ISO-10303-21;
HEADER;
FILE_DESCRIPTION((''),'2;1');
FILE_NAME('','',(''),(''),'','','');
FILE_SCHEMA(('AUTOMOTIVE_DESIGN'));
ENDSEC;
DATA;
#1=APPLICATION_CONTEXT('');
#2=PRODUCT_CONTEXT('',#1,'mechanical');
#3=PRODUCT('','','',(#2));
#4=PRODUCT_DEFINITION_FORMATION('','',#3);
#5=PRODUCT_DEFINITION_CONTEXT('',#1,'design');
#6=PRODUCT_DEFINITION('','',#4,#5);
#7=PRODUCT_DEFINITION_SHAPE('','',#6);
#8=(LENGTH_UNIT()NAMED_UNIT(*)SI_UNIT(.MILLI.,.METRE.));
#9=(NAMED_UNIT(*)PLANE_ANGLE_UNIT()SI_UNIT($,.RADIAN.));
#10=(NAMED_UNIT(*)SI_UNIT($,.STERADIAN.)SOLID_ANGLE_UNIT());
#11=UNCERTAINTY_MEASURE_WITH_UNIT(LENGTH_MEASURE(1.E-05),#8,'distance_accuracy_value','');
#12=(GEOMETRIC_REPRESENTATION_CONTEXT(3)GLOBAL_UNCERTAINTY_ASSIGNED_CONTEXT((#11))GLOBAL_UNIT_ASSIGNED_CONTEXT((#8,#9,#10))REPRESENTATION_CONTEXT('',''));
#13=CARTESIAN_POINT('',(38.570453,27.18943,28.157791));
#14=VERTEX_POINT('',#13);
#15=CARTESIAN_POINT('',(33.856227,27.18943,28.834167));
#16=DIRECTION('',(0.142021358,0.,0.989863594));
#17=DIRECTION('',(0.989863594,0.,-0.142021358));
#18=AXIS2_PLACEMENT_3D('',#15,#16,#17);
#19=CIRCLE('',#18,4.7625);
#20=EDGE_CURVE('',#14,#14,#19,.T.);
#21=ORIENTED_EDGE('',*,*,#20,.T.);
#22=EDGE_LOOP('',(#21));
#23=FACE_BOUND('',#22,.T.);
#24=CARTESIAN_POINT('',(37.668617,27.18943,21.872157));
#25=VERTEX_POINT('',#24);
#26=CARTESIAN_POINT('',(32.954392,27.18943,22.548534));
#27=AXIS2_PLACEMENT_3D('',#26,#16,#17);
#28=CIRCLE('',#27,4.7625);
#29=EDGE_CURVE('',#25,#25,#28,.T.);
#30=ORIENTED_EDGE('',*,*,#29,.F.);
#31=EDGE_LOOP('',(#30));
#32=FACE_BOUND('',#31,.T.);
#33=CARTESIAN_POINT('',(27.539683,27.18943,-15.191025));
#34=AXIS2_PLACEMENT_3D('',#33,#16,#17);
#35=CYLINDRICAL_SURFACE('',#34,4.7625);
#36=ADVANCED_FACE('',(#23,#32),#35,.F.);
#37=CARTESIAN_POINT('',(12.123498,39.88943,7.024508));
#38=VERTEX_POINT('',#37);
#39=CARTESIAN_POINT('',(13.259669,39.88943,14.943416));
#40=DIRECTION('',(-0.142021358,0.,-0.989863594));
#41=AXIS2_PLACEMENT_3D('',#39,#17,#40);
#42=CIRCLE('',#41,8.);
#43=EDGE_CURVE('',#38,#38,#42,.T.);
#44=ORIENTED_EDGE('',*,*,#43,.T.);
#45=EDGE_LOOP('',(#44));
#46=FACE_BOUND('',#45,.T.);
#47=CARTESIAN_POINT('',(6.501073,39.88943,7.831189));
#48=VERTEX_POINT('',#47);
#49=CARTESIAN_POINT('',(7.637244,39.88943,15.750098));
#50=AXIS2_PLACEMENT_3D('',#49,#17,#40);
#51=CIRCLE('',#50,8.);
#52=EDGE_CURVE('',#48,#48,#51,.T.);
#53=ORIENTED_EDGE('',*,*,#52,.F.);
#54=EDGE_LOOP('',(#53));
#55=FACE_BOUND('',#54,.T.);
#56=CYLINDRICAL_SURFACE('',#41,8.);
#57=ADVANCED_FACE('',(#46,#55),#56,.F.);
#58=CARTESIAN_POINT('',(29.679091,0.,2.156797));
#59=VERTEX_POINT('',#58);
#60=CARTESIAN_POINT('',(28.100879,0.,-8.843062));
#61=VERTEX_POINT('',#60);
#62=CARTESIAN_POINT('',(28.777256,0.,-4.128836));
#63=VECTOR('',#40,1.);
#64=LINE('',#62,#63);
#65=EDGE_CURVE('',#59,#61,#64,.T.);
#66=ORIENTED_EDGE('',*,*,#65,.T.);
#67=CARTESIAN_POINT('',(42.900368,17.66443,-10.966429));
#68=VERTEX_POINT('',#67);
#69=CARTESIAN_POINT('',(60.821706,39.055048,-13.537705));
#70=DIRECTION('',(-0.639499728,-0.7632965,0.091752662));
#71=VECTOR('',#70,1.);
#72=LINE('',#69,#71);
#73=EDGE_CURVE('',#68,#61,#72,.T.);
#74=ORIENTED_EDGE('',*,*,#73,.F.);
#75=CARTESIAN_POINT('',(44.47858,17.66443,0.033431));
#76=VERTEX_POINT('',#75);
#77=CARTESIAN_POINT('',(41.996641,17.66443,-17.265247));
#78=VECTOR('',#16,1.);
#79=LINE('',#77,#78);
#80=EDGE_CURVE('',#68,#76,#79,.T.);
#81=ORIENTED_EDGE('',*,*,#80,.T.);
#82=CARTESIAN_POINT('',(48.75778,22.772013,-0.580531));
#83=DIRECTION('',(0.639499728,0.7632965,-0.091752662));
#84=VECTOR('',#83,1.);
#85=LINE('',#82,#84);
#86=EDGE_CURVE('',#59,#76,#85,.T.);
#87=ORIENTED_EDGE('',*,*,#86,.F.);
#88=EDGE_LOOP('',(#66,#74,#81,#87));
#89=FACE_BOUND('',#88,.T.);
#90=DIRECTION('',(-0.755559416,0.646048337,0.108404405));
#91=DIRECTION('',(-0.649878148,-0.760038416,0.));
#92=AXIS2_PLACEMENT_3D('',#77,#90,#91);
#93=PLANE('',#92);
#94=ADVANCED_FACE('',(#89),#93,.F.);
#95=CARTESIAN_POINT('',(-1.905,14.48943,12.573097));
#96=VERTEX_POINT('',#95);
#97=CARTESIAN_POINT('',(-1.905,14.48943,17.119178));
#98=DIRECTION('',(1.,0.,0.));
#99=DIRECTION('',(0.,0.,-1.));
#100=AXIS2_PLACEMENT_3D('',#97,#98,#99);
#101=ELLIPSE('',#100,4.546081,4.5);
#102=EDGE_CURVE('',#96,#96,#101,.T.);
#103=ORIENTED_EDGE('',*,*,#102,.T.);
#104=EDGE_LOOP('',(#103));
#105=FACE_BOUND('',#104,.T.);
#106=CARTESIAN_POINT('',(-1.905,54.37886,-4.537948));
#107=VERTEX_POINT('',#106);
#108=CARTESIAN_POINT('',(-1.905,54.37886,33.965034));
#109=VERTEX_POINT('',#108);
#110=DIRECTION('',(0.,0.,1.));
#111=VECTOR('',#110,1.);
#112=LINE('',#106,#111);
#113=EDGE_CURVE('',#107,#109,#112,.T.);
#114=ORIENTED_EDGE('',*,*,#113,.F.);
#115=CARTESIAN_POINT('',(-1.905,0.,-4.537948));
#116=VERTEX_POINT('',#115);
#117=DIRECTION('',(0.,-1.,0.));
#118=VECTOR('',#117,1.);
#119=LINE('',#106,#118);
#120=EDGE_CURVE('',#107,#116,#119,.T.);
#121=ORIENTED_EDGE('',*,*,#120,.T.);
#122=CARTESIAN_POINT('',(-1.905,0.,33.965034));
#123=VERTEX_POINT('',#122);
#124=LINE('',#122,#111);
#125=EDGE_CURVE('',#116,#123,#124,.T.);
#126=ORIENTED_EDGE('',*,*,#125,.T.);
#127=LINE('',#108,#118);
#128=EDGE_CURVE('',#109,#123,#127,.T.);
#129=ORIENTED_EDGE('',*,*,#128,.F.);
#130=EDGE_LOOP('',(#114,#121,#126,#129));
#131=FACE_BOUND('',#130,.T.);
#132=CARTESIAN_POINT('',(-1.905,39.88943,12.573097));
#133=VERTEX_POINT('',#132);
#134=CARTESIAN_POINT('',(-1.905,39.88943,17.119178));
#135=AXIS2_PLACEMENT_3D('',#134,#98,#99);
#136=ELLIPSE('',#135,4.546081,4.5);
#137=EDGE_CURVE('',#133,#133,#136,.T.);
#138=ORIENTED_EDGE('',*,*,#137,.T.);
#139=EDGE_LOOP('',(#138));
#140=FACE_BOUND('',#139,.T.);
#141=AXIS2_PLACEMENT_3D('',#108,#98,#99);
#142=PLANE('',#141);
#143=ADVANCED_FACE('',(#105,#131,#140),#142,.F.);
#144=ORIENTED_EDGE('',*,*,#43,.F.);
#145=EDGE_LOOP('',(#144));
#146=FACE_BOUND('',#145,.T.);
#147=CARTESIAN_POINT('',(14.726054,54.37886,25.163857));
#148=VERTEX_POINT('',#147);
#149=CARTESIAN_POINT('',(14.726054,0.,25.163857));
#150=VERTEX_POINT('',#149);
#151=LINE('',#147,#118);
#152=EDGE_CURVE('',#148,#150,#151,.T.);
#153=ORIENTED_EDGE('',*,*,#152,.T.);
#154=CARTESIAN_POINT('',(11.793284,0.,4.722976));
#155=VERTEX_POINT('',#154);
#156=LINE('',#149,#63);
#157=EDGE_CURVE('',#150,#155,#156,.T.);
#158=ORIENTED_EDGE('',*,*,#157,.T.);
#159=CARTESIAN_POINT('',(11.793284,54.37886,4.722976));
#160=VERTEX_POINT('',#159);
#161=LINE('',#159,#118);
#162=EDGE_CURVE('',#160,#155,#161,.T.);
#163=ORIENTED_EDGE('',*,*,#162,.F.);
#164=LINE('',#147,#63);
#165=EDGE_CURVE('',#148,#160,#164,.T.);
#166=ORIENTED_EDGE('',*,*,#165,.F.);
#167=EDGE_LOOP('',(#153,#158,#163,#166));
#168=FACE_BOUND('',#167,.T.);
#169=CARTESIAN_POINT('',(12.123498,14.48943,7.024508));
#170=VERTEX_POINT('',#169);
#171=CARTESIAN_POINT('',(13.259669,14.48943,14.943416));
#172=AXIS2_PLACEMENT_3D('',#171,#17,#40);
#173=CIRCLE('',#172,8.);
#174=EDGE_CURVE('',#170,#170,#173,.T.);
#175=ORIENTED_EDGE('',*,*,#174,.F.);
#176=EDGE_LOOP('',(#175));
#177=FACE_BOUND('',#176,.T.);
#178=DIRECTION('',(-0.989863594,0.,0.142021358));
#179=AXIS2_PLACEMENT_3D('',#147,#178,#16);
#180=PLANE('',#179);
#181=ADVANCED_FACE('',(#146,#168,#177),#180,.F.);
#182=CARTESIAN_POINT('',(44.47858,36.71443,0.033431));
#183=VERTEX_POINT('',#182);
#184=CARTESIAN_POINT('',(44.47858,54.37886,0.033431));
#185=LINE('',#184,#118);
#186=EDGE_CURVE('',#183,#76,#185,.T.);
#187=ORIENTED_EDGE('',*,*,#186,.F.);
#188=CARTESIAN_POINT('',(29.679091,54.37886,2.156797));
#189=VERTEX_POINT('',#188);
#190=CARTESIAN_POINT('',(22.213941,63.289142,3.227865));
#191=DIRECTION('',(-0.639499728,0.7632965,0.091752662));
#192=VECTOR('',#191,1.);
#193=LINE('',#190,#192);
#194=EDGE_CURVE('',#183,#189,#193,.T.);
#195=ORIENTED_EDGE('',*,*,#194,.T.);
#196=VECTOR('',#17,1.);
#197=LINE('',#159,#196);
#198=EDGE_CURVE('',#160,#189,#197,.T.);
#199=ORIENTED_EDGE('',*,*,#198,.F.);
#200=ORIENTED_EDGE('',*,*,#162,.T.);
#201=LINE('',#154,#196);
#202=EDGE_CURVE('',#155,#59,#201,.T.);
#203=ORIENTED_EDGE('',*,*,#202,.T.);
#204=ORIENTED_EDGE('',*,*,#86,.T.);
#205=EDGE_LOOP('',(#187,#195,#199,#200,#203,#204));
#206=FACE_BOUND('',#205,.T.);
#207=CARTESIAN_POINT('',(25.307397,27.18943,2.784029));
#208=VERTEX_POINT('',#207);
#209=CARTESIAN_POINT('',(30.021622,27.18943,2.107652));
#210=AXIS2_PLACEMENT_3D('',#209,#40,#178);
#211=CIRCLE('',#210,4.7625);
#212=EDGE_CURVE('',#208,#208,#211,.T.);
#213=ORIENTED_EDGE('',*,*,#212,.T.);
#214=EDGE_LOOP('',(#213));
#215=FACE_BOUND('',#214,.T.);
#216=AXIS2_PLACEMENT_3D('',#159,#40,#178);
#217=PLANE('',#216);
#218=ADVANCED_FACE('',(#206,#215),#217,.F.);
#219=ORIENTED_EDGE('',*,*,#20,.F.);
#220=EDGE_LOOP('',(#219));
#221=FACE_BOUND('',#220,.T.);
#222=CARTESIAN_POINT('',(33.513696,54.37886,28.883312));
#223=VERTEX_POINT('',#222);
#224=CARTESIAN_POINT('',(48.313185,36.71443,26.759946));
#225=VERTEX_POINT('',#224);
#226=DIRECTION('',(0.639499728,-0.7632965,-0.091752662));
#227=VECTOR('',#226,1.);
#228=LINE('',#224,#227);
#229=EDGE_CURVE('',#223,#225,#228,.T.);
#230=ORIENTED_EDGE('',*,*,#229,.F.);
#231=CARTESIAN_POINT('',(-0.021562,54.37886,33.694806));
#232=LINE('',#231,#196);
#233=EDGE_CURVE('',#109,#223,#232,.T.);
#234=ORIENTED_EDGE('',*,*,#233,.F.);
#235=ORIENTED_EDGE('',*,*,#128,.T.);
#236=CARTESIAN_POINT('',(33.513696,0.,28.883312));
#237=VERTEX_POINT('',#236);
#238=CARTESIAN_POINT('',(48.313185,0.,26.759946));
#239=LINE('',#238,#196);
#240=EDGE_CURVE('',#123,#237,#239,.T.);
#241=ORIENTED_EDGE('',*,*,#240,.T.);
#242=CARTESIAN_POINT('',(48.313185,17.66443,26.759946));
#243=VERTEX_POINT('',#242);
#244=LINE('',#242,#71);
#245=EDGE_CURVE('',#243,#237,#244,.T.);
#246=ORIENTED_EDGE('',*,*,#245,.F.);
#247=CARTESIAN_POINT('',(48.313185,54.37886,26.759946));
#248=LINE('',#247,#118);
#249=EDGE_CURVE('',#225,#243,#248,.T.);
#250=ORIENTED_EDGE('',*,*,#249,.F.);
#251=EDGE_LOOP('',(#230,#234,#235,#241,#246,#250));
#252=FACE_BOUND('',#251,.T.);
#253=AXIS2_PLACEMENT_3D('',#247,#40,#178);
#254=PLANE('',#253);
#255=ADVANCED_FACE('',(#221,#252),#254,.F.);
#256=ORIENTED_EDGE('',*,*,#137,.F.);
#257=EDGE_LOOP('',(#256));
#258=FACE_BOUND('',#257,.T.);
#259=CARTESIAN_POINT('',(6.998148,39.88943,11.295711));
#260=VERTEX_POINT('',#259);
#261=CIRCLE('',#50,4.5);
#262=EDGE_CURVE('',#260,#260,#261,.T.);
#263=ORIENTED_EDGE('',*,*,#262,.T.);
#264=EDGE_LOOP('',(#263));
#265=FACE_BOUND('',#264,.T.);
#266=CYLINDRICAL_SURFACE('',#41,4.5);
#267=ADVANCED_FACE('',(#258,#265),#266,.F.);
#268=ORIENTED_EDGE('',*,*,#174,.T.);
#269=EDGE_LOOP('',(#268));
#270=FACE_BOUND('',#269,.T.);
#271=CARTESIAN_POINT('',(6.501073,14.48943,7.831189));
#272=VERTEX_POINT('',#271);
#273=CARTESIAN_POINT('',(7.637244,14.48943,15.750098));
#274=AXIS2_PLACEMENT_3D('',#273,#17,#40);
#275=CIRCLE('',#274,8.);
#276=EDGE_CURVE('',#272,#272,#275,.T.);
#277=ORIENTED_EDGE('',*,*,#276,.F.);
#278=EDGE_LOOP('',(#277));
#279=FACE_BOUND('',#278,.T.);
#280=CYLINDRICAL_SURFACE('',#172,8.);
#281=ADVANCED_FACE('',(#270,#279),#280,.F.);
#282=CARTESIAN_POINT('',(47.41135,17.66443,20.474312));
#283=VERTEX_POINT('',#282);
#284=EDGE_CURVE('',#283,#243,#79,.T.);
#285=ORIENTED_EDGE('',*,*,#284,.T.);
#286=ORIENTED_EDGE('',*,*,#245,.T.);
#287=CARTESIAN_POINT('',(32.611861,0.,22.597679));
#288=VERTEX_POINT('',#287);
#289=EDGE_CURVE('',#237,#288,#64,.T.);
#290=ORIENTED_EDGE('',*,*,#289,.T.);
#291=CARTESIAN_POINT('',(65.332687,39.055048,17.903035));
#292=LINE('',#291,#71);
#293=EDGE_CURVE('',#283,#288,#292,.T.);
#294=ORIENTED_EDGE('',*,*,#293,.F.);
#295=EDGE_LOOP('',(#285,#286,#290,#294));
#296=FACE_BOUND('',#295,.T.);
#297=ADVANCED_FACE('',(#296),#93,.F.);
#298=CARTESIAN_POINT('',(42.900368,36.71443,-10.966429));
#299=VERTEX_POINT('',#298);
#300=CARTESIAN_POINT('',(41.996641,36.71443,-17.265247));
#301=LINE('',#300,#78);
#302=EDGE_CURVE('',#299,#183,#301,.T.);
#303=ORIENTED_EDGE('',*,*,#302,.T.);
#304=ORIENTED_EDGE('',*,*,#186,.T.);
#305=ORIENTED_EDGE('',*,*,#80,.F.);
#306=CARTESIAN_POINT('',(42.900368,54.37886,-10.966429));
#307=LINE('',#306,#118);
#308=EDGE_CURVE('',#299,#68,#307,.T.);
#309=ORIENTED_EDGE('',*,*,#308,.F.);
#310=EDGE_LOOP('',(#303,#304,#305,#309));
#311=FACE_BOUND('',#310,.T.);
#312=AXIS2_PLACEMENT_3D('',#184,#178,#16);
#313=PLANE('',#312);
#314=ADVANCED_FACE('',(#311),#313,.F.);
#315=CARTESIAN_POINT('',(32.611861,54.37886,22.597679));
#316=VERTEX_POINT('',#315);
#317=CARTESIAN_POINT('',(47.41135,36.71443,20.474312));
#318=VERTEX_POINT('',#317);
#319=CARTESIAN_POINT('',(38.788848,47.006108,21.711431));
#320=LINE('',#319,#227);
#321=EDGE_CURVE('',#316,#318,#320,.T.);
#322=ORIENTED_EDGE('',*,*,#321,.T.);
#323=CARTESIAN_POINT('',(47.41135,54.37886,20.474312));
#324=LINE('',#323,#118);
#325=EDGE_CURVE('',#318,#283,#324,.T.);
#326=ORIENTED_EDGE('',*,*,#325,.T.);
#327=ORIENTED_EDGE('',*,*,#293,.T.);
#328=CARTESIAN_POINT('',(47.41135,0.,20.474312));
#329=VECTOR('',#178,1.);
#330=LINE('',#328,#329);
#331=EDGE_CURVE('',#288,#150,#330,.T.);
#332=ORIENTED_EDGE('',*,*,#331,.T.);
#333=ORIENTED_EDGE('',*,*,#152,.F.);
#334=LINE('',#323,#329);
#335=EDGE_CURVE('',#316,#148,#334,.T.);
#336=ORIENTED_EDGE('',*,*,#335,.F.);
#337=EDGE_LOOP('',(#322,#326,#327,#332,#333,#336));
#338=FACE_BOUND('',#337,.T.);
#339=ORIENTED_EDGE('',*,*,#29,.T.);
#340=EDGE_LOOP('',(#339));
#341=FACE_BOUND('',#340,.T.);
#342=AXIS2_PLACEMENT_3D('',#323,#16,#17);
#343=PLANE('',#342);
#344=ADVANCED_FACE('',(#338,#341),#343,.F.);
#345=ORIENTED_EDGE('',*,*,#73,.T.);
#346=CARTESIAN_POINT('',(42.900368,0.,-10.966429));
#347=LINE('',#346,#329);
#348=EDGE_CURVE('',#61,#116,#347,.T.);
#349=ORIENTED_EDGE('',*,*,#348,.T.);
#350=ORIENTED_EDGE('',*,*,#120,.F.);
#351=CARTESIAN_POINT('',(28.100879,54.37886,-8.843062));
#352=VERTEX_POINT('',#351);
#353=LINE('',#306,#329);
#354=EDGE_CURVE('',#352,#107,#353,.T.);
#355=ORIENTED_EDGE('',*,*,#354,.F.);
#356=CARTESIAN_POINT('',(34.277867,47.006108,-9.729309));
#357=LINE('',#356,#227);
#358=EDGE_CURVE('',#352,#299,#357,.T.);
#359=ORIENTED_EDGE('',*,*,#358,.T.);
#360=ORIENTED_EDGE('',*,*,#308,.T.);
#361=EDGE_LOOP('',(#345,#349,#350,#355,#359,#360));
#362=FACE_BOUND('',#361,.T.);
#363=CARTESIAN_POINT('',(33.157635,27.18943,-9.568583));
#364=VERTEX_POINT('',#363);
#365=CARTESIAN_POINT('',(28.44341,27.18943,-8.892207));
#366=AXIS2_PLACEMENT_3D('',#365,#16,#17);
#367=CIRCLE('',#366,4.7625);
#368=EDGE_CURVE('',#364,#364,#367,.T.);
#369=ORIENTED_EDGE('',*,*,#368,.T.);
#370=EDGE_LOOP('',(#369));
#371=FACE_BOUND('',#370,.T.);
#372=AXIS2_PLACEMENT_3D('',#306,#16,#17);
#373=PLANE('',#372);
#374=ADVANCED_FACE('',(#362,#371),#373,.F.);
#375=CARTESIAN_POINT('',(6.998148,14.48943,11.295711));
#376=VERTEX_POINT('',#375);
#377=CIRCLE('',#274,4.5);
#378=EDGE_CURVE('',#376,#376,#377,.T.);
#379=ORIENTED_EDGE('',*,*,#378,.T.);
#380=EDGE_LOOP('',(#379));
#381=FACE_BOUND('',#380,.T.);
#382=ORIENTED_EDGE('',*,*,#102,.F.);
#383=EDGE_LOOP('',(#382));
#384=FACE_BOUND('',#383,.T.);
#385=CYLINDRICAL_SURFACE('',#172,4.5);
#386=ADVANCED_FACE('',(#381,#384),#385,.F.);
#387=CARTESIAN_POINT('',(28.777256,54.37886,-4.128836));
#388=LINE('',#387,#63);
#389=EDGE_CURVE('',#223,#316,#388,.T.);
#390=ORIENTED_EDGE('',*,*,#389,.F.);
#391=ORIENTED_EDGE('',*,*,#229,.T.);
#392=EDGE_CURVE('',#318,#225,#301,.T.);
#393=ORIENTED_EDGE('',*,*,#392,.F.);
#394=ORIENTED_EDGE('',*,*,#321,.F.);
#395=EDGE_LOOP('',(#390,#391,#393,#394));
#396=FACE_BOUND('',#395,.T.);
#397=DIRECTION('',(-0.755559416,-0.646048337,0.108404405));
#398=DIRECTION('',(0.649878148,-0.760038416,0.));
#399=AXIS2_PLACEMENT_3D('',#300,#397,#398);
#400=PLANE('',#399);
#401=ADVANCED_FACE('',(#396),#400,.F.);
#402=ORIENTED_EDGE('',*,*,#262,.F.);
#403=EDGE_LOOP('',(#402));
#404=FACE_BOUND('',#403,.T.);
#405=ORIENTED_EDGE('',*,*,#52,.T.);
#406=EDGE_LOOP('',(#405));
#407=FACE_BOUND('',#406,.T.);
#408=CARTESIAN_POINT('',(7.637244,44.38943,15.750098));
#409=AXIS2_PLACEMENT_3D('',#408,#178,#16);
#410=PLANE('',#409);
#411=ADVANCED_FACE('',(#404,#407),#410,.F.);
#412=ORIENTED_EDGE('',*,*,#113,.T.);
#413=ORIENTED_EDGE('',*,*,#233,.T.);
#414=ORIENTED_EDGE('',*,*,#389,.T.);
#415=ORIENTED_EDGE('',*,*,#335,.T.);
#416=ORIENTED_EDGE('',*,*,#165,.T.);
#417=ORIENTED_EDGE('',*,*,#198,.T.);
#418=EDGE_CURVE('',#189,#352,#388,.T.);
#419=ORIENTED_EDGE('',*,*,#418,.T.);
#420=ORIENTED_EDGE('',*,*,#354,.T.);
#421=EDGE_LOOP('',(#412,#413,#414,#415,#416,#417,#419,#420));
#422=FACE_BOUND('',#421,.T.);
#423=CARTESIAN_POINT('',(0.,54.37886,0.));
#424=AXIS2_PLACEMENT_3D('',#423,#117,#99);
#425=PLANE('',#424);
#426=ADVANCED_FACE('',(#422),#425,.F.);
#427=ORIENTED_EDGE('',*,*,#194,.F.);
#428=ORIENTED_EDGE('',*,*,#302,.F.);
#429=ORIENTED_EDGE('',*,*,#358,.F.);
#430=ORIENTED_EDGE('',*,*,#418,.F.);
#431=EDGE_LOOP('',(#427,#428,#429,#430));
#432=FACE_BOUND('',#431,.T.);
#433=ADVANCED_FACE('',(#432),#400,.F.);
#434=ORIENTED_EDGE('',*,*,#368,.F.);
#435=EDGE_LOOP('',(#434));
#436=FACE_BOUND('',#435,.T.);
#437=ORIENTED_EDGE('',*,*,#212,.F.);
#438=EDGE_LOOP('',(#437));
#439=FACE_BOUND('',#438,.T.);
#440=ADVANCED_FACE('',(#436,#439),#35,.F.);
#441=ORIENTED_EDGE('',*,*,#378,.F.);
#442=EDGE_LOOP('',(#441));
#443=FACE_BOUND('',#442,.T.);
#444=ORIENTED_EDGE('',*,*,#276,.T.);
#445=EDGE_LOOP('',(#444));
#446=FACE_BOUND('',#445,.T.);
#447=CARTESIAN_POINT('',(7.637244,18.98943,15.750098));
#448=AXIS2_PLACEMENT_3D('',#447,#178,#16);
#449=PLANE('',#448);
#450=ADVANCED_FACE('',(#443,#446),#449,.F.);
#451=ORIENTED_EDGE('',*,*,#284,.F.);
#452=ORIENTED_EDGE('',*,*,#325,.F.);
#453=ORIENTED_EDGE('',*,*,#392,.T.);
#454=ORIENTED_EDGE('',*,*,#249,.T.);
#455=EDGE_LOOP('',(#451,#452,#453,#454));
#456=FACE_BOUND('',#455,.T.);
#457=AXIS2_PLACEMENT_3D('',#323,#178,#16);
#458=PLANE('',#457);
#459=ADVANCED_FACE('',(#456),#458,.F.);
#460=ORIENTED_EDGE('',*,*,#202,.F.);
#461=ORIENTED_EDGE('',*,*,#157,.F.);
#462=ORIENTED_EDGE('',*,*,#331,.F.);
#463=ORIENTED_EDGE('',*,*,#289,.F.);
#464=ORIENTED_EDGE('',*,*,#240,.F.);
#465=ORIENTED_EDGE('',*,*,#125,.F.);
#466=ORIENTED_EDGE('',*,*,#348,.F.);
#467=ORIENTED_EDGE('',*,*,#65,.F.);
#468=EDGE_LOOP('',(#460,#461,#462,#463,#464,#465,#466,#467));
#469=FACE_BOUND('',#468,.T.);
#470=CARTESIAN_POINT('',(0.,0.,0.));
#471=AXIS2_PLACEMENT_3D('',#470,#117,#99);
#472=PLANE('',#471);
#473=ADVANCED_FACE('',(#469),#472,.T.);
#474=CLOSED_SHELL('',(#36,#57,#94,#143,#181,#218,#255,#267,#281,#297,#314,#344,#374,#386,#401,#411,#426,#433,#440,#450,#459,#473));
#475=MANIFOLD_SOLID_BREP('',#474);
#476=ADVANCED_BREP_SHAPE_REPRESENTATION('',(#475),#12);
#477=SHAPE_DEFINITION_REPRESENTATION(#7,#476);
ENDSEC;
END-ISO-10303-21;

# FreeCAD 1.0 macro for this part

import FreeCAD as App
import Part
import Sketcher
Q = App.Units.Quantity


def add_polygon(sketch, points):
    """Adds a closed chain of lines whose ends are joined by coincident constraints."""
    first, n = sketch.GeometryCount, len(points)
    for a, b in zip(points, points[1:] + points[:1]):
        sketch.addGeometry(Part.LineSegment(App.Vector(*a, 0), App.Vector(*b, 0)), False)
    for i in range(n):
        sketch.addConstraint(Sketcher.Constraint("Coincident", first + i, 2, first + (i + 1) % n, 1))

doc = App.newDocument("Part")
body = doc.addObject("PartDesign::Body", "Body")

# Sketch on XZ plane
sketch1 = body.newObject("Sketcher::SketchObject", "Sketch")
sketch1.AttachmentSupport = (doc.getObject("XZ_Plane"), [""])
sketch1.MapMode = "FlatFace"
add_polygon(sketch1, [(42.9, -11), (-1.9, -4.5), (-1.9, 34), (0, 33.7), (48.3, 26.8), (47.4, 20.5), (14.7, 25.2), (11.8, 4.7), (44.5, 0)])  # lines 0-8
sketch1.addConstraint([
    Sketcher.Constraint("Vertical", 1),
    Sketcher.Constraint("Parallel", 0, 2),
    Sketcher.Constraint("Parallel", 2, 3),
    Sketcher.Constraint("Perpendicular", 3, 4),
    Sketcher.Constraint("Perpendicular", 4, 5),
    Sketcher.Constraint("Perpendicular", 5, 6),
    Sketcher.Constraint("Perpendicular", 6, 7),
    Sketcher.Constraint("Perpendicular", 7, 8),
    Sketcher.Constraint("Equal", 5, 7),
    Sketcher.Constraint("Distance", 5, Q("1.3 in")),
    Sketcher.Constraint("Distance", 4, Q("0.25 in")),
    Sketcher.Constraint("Distance", 6, Q("0.813 in")),
    Sketcher.Constraint("Distance", 8, Q("0.4375 in")),
    Sketcher.Constraint("DistanceX", 0, 2, -1, 1, Q("0.075 in")),
    Sketcher.Constraint("DistanceY", 1, 1, 1, 2, Q("38.502982 mm")),
    Sketcher.Constraint("DistanceX", 2, 2, -1, 1, Q("0.021562 mm")),
    Sketcher.Constraint("DistanceX", -1, 1, 4, 2, Q("47.41135 mm")),
    Sketcher.Constraint("DistanceY", -1, 1, 4, 2, Q("20.474312 mm")),
])
pad1 = body.newObject("PartDesign::Pad", "Pad")
pad1.Profile = sketch1
pad1.Length = Q("2.1409 in")
pad1.Reversed = True

# Sketch on an angled plane
sketch2 = body.newObject("Sketcher::SketchObject", "Sketch001")
sketch2.Placement = App.Placement(App.Vector(4.736441, 0, 33.012149), App.Rotation(App.Vector(0.989863594, 0, -0.142021358), App.Vector(0, 1.000000001, 0), App.Vector(0.142021358, 0, 0.989863594), "ZXY"))
sketch2.addGeometry(Part.Circle(App.Vector(29.4, 27.2, 0), App.Vector(0, 0, 1), 4.8), False)  # 0
add_polygon(sketch2, [(29.1, 54.4), (44, 36.7), (44, 54.4)])  # lines 1-3
add_polygon(sketch2, [(44, 0), (44, 17.7), (29.1, 0)])  # lines 4-6
sketch2.addConstraint([
    Sketcher.Constraint("Vertical", 2),
    Sketcher.Constraint("Horizontal", 3),
    Sketcher.Constraint("Vertical", 4),
    Sketcher.Constraint("Horizontal", 6),
    Sketcher.Constraint("PointOnObject", 5, 2, -1),
    Sketcher.Constraint("Vertical", 2, 2, 4, 2),
    Sketcher.Constraint("Vertical", 3, 2, 5, 2),
    Sketcher.Constraint("Equal", 2, 4),
    Sketcher.Constraint("Diameter", 0, Q("0.375 in")),
    Sketcher.Constraint("DistanceY", 4, 2, 1, 2, Q("0.75 in")),
    Sketcher.Constraint("DistanceX", 0, 3, 1, 2, Q("0.575 in")),
    Sketcher.Constraint("DistanceY", 0, 3, 1, 2, Q("0.375 in")),
    Sketcher.Constraint("DistanceY", -1, 1, 2, 2, Q("2.1409 in")),
    Sketcher.Constraint("DistanceX", 3, 2, 3, 1, Q("14.951039 mm")),
    Sketcher.Constraint("DistanceX", -1, 1, 0, 3, Q("29.417979 mm")),
])
pocket1 = body.newObject("PartDesign::Pocket", "Pocket")
pocket1.Profile = sketch2
pocket1.Type = "ThroughAll"

# Sketch on an angled plane
sketch3 = body.newObject("Sketcher::SketchObject", "Sketch002")
sketch3.Placement = App.Placement(App.Vector(10.891449, 0, -1.562658), App.Rotation(App.Vector(-0.142021358, 0, -0.989863594), App.Vector(0, 1.000000001, 0), App.Vector(0.989863594, 0, -0.142021358), "ZXY"))
sketch3.addGeometry([
    Part.Circle(App.Vector(-16.7, 39.9, 0), App.Vector(0, 0, 1), 4.5),
    Part.Circle(App.Vector(-16.7, 14.5, 0), App.Vector(0, 0, 1), 4.5),
], False)
sketch3.addConstraint([
    Sketcher.Constraint("Equal", 0, 1),
    Sketcher.Constraint("Vertical", 0, 3, 1, 3),
    Sketcher.Constraint("DistanceY", 1, 3, 0, 3, Q("1 in")),
    Sketcher.Constraint("Diameter", 0, Q("9 mm")),
    Sketcher.Constraint("DistanceX", 0, 3, -1, 1, Q("0.6565 in")),
    Sketcher.Constraint("DistanceY", -1, 1, 0, 3, Q("39.88943 mm")),
])
doc.recompute()
hole = body.newObject("PartDesign::Hole", "Hole")
hole.Profile = sketch3
hole.ThreadType = "None"
hole.Diameter = 9
hole.DepthType = "ThroughAll"
hole.HoleCutType = "Counterbore"
hole.HoleCutDiameter = 16
hole.HoleCutDepth = 5.68

doc.recompute()
